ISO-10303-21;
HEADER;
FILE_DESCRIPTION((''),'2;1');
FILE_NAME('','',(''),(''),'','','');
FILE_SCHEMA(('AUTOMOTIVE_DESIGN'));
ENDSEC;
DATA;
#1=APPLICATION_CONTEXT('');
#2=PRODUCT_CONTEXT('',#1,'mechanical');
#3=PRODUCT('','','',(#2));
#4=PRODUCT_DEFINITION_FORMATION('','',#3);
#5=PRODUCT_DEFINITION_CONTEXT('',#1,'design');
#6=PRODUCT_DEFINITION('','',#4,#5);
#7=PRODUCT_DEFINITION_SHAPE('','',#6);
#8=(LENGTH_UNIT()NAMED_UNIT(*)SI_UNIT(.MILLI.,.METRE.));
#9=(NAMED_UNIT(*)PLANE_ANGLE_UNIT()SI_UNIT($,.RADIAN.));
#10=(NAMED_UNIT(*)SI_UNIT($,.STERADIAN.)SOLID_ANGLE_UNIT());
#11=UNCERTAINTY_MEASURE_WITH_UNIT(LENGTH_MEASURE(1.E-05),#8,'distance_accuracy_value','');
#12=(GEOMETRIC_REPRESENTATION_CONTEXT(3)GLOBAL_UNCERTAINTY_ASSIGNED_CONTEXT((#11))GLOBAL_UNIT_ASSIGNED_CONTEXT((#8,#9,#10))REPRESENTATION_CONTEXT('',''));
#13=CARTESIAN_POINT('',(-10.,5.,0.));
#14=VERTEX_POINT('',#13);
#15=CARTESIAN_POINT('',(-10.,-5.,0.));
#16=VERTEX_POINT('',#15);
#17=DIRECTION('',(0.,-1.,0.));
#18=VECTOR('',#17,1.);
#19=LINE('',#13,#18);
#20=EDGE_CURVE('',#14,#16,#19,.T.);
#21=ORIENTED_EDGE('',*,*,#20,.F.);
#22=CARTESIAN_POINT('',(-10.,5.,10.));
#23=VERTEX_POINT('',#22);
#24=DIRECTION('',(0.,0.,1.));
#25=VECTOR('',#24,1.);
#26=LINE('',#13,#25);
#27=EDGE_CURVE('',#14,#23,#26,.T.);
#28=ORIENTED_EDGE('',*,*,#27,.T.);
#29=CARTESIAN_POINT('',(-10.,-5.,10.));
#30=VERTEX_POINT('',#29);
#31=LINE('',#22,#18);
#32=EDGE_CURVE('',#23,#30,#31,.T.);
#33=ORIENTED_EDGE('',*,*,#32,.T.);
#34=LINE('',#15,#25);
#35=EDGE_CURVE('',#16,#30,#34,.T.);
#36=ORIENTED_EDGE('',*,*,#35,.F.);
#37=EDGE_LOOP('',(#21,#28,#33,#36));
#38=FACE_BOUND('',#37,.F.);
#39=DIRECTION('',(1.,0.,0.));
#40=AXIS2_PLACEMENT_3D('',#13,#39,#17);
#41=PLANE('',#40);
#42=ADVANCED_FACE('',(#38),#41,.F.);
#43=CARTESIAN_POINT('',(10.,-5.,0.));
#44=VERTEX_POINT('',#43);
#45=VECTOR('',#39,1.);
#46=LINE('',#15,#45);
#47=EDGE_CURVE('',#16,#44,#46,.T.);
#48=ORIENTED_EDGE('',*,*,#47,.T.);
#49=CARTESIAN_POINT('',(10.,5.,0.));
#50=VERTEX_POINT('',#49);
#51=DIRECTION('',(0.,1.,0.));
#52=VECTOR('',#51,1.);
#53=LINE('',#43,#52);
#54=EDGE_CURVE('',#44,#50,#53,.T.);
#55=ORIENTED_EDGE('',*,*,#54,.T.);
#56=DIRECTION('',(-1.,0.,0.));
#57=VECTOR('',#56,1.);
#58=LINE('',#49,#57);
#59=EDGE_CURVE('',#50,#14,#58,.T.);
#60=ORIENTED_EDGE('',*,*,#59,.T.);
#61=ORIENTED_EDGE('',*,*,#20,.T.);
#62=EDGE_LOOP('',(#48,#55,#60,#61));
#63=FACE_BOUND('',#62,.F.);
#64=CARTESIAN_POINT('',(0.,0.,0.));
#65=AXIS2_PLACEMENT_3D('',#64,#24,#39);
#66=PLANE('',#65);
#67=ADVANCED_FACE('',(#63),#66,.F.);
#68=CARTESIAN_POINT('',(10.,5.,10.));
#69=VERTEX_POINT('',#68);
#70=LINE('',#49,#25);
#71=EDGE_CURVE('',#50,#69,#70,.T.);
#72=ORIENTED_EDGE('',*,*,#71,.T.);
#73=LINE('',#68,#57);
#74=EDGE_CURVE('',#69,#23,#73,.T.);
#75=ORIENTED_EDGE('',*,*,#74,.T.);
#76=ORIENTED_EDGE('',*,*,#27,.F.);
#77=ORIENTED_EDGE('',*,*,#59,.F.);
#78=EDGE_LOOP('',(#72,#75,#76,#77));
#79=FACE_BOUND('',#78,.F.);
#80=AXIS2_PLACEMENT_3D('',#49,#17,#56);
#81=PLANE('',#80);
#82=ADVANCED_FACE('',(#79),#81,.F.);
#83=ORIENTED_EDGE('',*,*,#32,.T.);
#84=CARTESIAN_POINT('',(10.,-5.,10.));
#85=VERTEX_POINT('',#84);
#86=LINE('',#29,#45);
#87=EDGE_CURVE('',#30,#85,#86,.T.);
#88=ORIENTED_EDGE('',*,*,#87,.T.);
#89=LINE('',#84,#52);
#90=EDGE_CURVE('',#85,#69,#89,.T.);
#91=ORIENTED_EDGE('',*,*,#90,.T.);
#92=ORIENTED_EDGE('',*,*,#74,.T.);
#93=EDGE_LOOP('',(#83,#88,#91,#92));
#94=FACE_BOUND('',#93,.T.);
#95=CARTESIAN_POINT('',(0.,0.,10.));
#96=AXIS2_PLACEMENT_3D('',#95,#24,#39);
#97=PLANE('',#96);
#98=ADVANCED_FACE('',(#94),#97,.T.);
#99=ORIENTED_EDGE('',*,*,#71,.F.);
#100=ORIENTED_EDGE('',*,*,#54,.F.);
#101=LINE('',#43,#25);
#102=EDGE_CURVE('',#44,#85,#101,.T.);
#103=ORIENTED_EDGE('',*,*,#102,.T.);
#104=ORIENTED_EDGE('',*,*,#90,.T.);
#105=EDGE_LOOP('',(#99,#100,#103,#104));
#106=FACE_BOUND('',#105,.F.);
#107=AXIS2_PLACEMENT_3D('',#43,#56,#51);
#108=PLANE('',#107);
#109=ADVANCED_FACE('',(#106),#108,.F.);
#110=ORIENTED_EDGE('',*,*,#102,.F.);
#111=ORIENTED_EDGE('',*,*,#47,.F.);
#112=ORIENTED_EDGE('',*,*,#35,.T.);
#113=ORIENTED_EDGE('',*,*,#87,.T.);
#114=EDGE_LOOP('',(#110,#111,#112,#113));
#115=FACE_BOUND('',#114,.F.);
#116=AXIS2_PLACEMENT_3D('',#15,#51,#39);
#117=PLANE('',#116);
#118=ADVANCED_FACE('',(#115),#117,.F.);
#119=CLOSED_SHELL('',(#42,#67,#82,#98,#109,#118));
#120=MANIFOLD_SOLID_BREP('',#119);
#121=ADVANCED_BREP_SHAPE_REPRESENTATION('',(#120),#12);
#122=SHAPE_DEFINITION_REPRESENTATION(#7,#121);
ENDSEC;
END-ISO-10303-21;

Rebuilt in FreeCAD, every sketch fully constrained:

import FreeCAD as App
import Part
import Sketcher

V = App.Vector


def add_polygon(sketch, points):
    """Adds a closed chain of lines whose ends are joined by coincident constraints."""
    first, n = sketch.GeometryCount, len(points)
    for a, b in zip(points, points[1:] + points[:1]):
        sketch.addGeometry(Part.LineSegment(App.Vector(*a, 0), App.Vector(*b, 0)), False)
    for i in range(n):
        sketch.addConstraint(Sketcher.Constraint("Coincident", first + i, 2, first + (i + 1) % n, 1))

doc = App.newDocument("Part")
body = doc.addObject("PartDesign::Body", "Body")

sketch1 = body.newObject("Sketcher::SketchObject", "Sketch")
sketch1.AttachmentSupport = (doc.getObject("XY_Plane"), [""])
sketch1.MapMode = "FlatFace"
add_polygon(sketch1, [(-10, 5), (-10, -5), (10, -5), (10, 5)])
sketch1.addConstraint([
    Sketcher.Constraint("Vertical", 0),
    Sketcher.Constraint("Horizontal", 1),
    Sketcher.Constraint("Vertical", 2),
    Sketcher.Constraint("Horizontal", 3),
    Sketcher.Constraint("Symmetric", 0, 2, 2, 2, -1, 1),
    Sketcher.Constraint("DistanceX", 1, 1, 1, 2, 20.0),
    Sketcher.Constraint("DistanceY", 0, 2, 0, 1, 10.0),
])
pad1 = body.newObject("PartDesign::Pad", "Pad")
pad1.Profile = sketch1
pad1.Length = 10

doc.recompute()
